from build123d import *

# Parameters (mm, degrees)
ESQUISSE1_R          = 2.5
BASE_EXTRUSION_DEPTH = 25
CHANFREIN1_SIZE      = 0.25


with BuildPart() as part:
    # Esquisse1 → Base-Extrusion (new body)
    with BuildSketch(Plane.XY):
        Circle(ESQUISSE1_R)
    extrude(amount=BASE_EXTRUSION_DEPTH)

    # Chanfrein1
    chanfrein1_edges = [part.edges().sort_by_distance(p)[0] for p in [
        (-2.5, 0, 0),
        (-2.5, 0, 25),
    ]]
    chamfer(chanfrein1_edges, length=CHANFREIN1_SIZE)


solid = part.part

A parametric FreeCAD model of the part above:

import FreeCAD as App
import Part
import Sketcher
Q = App.Units.Quantity


def edges_at(feature, points):
    """Names of the edges that pass closest to the given points."""
    edges = feature.Shape.Edges
    near = lambda p: min(range(len(edges)), key=lambda i: edges[i].distToShape(Part.Vertex(*p))[0])
    return sorted({f"Edge{near(p) + 1}" for p in points})

doc = App.newDocument("Part")
body = doc.addObject("PartDesign::Body", "Body")

# Sketch on XY plane
sketch1 = body.newObject("Sketcher::SketchObject", "Sketch")
sketch1.AttachmentSupport = (doc.getObject("XY_Plane"), [""])
sketch1.MapMode = "FlatFace"
sketch1.addGeometry(Part.Circle(App.Vector(0, 0, 0), App.Vector(0, 0, 1), 2.5), False)
sketch1.addConstraint([
    Sketcher.Constraint("Coincident", 0, 3, -1, 1),
    Sketcher.Constraint("Diameter", 0, Q("5 mm")),
])
pad1 = body.newObject("PartDesign::Pad", "Pad")
pad1.Profile = sketch1
pad1.Length = 25
doc.recompute()

chamfer = body.newObject("PartDesign::Chamfer", "Chamfer")
chamfer.Base = (pad1, edges_at(pad1, [(-2.5, 0, 0), (-2.5, 0, 25)]))
chamfer.Size = 0.25

doc.recompute()
